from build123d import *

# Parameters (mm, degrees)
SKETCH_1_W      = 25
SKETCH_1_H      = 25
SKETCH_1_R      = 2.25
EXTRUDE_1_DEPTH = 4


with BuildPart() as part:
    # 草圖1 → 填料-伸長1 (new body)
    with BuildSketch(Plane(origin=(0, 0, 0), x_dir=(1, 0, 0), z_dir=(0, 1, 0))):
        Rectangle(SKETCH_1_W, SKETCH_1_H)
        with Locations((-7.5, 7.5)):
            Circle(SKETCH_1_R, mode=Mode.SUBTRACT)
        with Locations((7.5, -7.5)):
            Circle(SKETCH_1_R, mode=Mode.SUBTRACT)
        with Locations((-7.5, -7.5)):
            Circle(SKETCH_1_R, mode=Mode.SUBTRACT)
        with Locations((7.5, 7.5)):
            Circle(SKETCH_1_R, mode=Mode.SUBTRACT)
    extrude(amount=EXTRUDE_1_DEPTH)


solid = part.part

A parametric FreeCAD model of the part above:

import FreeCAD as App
import Part
import Sketcher

doc = App.newDocument("Part")
body = doc.addObject("PartDesign::Body", "Body")

# Sketch on XZ plane
sketch1 = body.newObject("Sketcher::SketchObject", "Sketch")
sketch1.AttachmentSupport = (doc.getObject("XZ_Plane"), [""])
sketch1.MapMode = "FlatFace"
sketch1.addGeometry(Part.LineSegment(App.Vector(-12.5, -12.5, 0), App.Vector(-12.5, 12.5, 0)), False)
sketch1.addGeometry(Part.LineSegment(App.Vector(-12.5, 12.5, 0), App.Vector(12.5, 12.5, 0)), False)
sketch1.addGeometry(Part.LineSegment(App.Vector(12.5, 12.5, 0), App.Vector(12.5, -12.5, 0)), False)
sketch1.addGeometry(Part.LineSegment(App.Vector(12.5, -12.5, 0), App.Vector(-12.5, -12.5, 0)), False)
sketch1.addGeometry(Part.Circle(App.Vector(-7.5, 7.5, 0), App.Vector(0, 0, 1), 2.2), False)
sketch1.addGeometry(Part.Circle(App.Vector(7.5, 7.5, 0), App.Vector(0, 0, 1), 2.2), False)
sketch1.addGeometry(Part.Circle(App.Vector(-7.5, -7.5, 0), App.Vector(0, 0, 1), 2.2), False)
sketch1.addGeometry(Part.Circle(App.Vector(7.5, -7.5, 0), App.Vector(0, 0, 1), 2.2), False)
sketch1.addConstraint(Sketcher.Constraint("Coincident", 0, 2, 1, 1))
sketch1.addConstraint(Sketcher.Constraint("Coincident", 1, 2, 2, 1))
sketch1.addConstraint(Sketcher.Constraint("Coincident", 2, 2, 3, 1))
sketch1.addConstraint(Sketcher.Constraint("Coincident", 3, 2, 0, 1))
sketch1.addConstraint(Sketcher.Constraint("Vertical", 0))
sketch1.addConstraint(Sketcher.Constraint("Horizontal", 1))
sketch1.addConstraint(Sketcher.Constraint("Vertical", 2))
sketch1.addConstraint(Sketcher.Constraint("Horizontal", 3))
sketch1.addConstraint(Sketcher.Constraint("Equal", 4, 5))
sketch1.addConstraint(Sketcher.Constraint("Equal", 5, 6))
sketch1.addConstraint(Sketcher.Constraint("Equal", 6, 7))
sketch1.addConstraint(Sketcher.Constraint("Symmetric", 5, 3, 6, 3, -1, 1))
sketch1.addConstraint(Sketcher.Constraint("Symmetric", 4, 3, 7, 3, -1, 1))
sketch1.addConstraint(Sketcher.Constraint("Symmetric", 0, 2, 2, 2, -1, 1))
sketch1.addConstraint(Sketcher.Constraint("Symmetric", 4, 3, 5, 3, -2))
sketch1.addConstraint(Sketcher.Constraint("Equal", 3, 0))
sketch1.addConstraint(Sketcher.Constraint("Diameter", 4, 4.5))
sketch1.addConstraint(Sketcher.Constraint("DistanceX", 1, 1, 1, 2, 25.0))
sketch1.addConstraint(Sketcher.Constraint("DistanceX", 4, 3, 5, 3, 15.0))
sketch1.addConstraint(Sketcher.Constraint("DistanceY", 6, 3, 4, 3, 15.0))
pad1 = body.newObject("PartDesign::Pad", "Pad")
pad1.Profile = sketch1
pad1.Length = 4
pad1.Reversed = True

doc.recompute()
